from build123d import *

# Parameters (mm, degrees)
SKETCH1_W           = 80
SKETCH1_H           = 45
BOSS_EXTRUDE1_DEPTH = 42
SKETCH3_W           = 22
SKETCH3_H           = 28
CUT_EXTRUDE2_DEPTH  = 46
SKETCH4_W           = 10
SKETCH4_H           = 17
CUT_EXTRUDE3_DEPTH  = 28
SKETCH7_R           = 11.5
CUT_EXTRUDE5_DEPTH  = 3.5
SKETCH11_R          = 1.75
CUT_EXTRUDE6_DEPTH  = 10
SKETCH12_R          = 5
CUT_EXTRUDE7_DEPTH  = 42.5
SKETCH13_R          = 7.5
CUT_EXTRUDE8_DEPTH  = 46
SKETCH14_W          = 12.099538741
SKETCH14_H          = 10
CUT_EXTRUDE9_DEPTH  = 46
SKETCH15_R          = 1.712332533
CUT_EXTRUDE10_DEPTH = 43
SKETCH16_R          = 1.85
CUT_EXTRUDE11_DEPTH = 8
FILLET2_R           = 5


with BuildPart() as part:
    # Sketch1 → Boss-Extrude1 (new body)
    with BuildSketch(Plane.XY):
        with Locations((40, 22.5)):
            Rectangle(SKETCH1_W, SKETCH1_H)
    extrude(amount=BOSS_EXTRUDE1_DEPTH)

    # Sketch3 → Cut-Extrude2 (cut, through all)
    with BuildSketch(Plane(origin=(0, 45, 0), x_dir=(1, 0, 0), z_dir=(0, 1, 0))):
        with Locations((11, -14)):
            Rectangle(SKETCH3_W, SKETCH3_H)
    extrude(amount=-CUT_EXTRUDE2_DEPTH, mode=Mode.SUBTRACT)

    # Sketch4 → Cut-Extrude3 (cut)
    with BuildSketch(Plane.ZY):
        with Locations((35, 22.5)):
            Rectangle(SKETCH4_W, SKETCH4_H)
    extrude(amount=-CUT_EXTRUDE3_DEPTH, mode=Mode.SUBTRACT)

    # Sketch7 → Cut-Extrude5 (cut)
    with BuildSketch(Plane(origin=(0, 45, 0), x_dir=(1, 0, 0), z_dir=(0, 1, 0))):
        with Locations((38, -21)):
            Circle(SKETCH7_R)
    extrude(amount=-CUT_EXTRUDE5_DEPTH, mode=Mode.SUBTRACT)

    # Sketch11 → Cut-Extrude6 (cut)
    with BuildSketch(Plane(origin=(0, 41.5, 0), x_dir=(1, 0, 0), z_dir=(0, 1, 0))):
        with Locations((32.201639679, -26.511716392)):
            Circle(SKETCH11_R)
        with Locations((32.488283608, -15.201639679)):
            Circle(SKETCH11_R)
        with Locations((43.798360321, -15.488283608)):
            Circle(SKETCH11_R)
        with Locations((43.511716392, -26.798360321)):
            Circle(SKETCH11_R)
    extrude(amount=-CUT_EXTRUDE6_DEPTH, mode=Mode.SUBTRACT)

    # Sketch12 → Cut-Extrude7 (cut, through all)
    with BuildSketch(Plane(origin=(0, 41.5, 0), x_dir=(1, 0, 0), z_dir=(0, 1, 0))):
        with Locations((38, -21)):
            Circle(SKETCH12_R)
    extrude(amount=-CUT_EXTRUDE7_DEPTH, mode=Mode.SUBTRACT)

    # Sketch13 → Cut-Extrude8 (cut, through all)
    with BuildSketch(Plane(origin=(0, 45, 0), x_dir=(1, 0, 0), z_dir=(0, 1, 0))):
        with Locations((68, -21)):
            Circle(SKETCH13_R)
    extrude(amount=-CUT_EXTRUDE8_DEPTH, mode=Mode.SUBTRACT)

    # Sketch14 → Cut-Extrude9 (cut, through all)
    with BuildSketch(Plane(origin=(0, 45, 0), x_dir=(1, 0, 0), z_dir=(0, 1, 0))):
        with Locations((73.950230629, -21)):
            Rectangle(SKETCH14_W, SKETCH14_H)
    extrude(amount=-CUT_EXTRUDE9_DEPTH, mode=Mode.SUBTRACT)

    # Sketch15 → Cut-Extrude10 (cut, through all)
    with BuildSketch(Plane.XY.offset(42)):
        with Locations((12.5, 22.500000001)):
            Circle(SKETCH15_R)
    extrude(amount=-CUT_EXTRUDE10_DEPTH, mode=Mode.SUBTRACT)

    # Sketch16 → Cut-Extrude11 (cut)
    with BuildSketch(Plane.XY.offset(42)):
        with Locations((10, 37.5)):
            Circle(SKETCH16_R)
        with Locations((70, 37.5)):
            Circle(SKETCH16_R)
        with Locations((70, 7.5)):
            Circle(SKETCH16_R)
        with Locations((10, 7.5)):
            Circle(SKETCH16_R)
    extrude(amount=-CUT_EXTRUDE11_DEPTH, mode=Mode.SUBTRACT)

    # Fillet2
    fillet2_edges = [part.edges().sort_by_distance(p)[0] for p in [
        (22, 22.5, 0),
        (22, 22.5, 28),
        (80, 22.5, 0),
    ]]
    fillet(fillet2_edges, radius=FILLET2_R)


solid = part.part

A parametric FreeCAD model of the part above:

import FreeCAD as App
import Part
import Sketcher
Q = App.Units.Quantity


def edges_at(feature, points):
    """Names of the edges that pass closest to the given points."""
    edges = feature.Shape.Edges
    near = lambda p: min(range(len(edges)), key=lambda i: edges[i].distToShape(Part.Vertex(*p))[0])
    return sorted({f"Edge{near(p) + 1}" for p in points})

doc = App.newDocument("Part")
body = doc.addObject("PartDesign::Body", "Body")

sketch1 = body.newObject("Sketcher::SketchObject", "Sketch")
sketch1.AttachmentSupport = (doc.getObject("XY_Plane"), [""])
sketch1.MapMode = "FlatFace"
sketch1.addGeometry([
    Part.LineSegment(App.Vector(0, 45, 0), App.Vector(0, 0, 0)),
    Part.LineSegment(App.Vector(0, 0, 0), App.Vector(80, 0, 0)),
    Part.LineSegment(App.Vector(80, 0, 0), App.Vector(80, 45, 0)),
    Part.LineSegment(App.Vector(80, 45, 0), App.Vector(0, 45, 0)),
], False)
sketch1.addConstraint([
    Sketcher.Constraint("Coincident", 0, 2, 1, 1),
    Sketcher.Constraint("Coincident", 1, 2, 2, 1),
    Sketcher.Constraint("Coincident", 2, 2, 3, 1),
    Sketcher.Constraint("Coincident", 3, 2, 0, 1),
    Sketcher.Constraint("Vertical", 0),
    Sketcher.Constraint("Horizontal", 1),
    Sketcher.Constraint("Vertical", 2),
    Sketcher.Constraint("Horizontal", 3),
    Sketcher.Constraint("Coincident", 0, 2, -1, 1),
    Sketcher.Constraint("DistanceX", 1, 1, 1, 2, Q("80 mm")),
    Sketcher.Constraint("DistanceY", 0, 2, 0, 1, Q("45 mm")),
])
pad1 = body.newObject("PartDesign::Pad", "Pad")
pad1.Profile = sketch1
pad1.Length = 42

sketch2 = body.newObject("Sketcher::SketchObject", "Sketch001")
sketch2.AttachmentSupport = (doc.getObject("XZ_Plane"), [""])
sketch2.MapMode = "FlatFace"
sketch2.AttachmentOffset = App.Placement(App.Vector(0, 0, -45), App.Rotation())
sketch2.addGeometry([
    Part.LineSegment(App.Vector(0, 0, 0), App.Vector(0, 28, 0)),
    Part.LineSegment(App.Vector(0, 28, 0), App.Vector(22, 28, 0)),
    Part.LineSegment(App.Vector(22, 28, 0), App.Vector(22, 0, 0)),
    Part.LineSegment(App.Vector(22, 0, 0), App.Vector(0, 0, 0)),
], False)
sketch2.addConstraint([
    Sketcher.Constraint("Coincident", 0, 2, 1, 1),
    Sketcher.Constraint("Coincident", 1, 2, 2, 1),
    Sketcher.Constraint("Coincident", 2, 2, 3, 1),
    Sketcher.Constraint("Coincident", 3, 2, 0, 1),
    Sketcher.Constraint("Vertical", 0),
    Sketcher.Constraint("Horizontal", 1),
    Sketcher.Constraint("Vertical", 2),
    Sketcher.Constraint("Horizontal", 3),
    Sketcher.Constraint("Coincident", 3, 2, -1, 1),
    Sketcher.Constraint("DistanceX", 1, 1, 1, 2, Q("22 mm")),
    Sketcher.Constraint("DistanceY", 0, 1, 0, 2, Q("28 mm")),
])
pocket1 = body.newObject("PartDesign::Pocket", "Pocket")
pocket1.Profile = sketch2
pocket1.Type = "ThroughAll"
pocket1.Reversed = True

sketch3 = body.newObject("Sketcher::SketchObject", "Sketch002")
sketch3.AttachmentSupport = (doc.getObject("YZ_Plane"), [""])
sketch3.MapMode = "FlatFace"
sketch3.addGeometry([
    Part.LineSegment(App.Vector(31, 30, 0), App.Vector(14, 30, 0)),
    Part.LineSegment(App.Vector(14, 30, 0), App.Vector(14, 40, 0)),
    Part.LineSegment(App.Vector(14, 40, 0), App.Vector(31, 40, 0)),
    Part.LineSegment(App.Vector(31, 40, 0), App.Vector(31, 30, 0)),
], False)
sketch3.addConstraint([
    Sketcher.Constraint("Coincident", 0, 2, 1, 1),
    Sketcher.Constraint("Coincident", 1, 2, 2, 1),
    Sketcher.Constraint("Coincident", 2, 2, 3, 1),
    Sketcher.Constraint("Coincident", 3, 2, 0, 1),
    Sketcher.Constraint("Horizontal", 0),
    Sketcher.Constraint("Vertical", 1),
    Sketcher.Constraint("Horizontal", 2),
    Sketcher.Constraint("Vertical", 3),
    Sketcher.Constraint("DistanceX", 0, 2, 0, 1, Q("17 mm")),
    Sketcher.Constraint("DistanceY", 1, 1, 1, 2, Q("10 mm")),
    Sketcher.Constraint("DistanceX", -1, 1, 0, 2, Q("14 mm")),
    Sketcher.Constraint("DistanceY", -1, 1, 0, 2, Q("30 mm")),
])
pocket2 = body.newObject("PartDesign::Pocket", "Pocket001")
pocket2.Profile = sketch3
pocket2.Length = 28
pocket2.Reversed = True

sketch4 = body.newObject("Sketcher::SketchObject", "Sketch003")
sketch4.AttachmentSupport = (doc.getObject("XZ_Plane"), [""])
sketch4.MapMode = "FlatFace"
sketch4.AttachmentOffset = App.Placement(App.Vector(0, 0, -45), App.Rotation())
sketch4.addGeometry(Part.Circle(App.Vector(38, 21, 0), App.Vector(0, 0, 1), 12), False)
sketch4.addConstraint([
    Sketcher.Constraint("Diameter", 0, Q("23 mm")),
    Sketcher.Constraint("DistanceX", -1, 1, 0, 3, Q("38 mm")),
    Sketcher.Constraint("DistanceY", -1, 1, 0, 3, Q("21 mm")),
])
pocket3 = body.newObject("PartDesign::Pocket", "Pocket002")
pocket3.Profile = sketch4
pocket3.Length = 3.5
pocket3.Reversed = True

sketch5 = body.newObject("Sketcher::SketchObject", "Sketch004")
sketch5.AttachmentSupport = (doc.getObject("XZ_Plane"), [""])
sketch5.MapMode = "FlatFace"
sketch5.AttachmentOffset = App.Placement(App.Vector(0, 0, -41.5), App.Rotation())
sketch5.addGeometry([
    Part.Circle(App.Vector(32.2, 26.5, 0), App.Vector(0, 0, 1), 1.8),
    Part.Circle(App.Vector(32.5, 15.2, 0), App.Vector(0, 0, 1), 1.8),
    Part.Circle(App.Vector(43.8, 15.5, 0), App.Vector(0, 0, 1), 1.8),
    Part.Circle(App.Vector(43.5, 26.8, 0), App.Vector(0, 0, 1), 1.8),
], False)
sketch5.addConstraint([
    Sketcher.Constraint("Equal", 0, 1),
    Sketcher.Constraint("Equal", 1, 2),
    Sketcher.Constraint("Equal", 2, 3),
    Sketcher.Constraint("Diameter", 0, Q("3.5 mm")),
    Sketcher.Constraint("DistanceX", -1, 1, 0, 3, Q("32.20164 mm")),
    Sketcher.Constraint("DistanceY", -1, 1, 1, 3, Q("15.20164 mm")),
    Sketcher.Constraint("DistanceX", -1, 1, 2, 3, Q("43.79836 mm")),
    Sketcher.Constraint("DistanceY", -1, 1, 3, 3, Q("26.79836 mm")),
    Sketcher.Constraint("DistanceY", -1, 1, 0, 3, Q("26.511716 mm")),
    Sketcher.Constraint("DistanceX", -1, 1, 1, 3, Q("32.488284 mm")),
    Sketcher.Constraint("DistanceY", -1, 1, 2, 3, Q("15.488284 mm")),
    Sketcher.Constraint("DistanceX", -1, 1, 3, 3, Q("43.511716 mm")),
])
pocket4 = body.newObject("PartDesign::Pocket", "Pocket003")
pocket4.Profile = sketch5
pocket4.Length = 10
pocket4.Reversed = True

sketch6 = body.newObject("Sketcher::SketchObject", "Sketch005")
sketch6.AttachmentSupport = (doc.getObject("XZ_Plane"), [""])
sketch6.MapMode = "FlatFace"
sketch6.AttachmentOffset = App.Placement(App.Vector(0, 0, -41.5), App.Rotation())
sketch6.addGeometry(Part.Circle(App.Vector(38, 21, 0), App.Vector(0, 0, 1), 5), False)
sketch6.addConstraint([
    Sketcher.Constraint("Diameter", 0, Q("10 mm")),
    Sketcher.Constraint("DistanceX", -1, 1, 0, 3, Q("38 mm")),
    Sketcher.Constraint("DistanceY", -1, 1, 0, 3, Q("21 mm")),
])
pocket5 = body.newObject("PartDesign::Pocket", "Pocket004")
pocket5.Profile = sketch6
pocket5.Type = "ThroughAll"
pocket5.Reversed = True

sketch7 = body.newObject("Sketcher::SketchObject", "Sketch006")
sketch7.AttachmentSupport = (doc.getObject("XZ_Plane"), [""])
sketch7.MapMode = "FlatFace"
sketch7.AttachmentOffset = App.Placement(App.Vector(0, 0, -45), App.Rotation())
sketch7.addGeometry(Part.Circle(App.Vector(68, 21, 0), App.Vector(0, 0, 1), 8), False)
sketch7.addConstraint([
    Sketcher.Constraint("Diameter", 0, Q("15 mm")),
    Sketcher.Constraint("DistanceX", -1, 1, 0, 3, Q("68 mm")),
    Sketcher.Constraint("DistanceY", -1, 1, 0, 3, Q("21 mm")),
])
pocket6 = body.newObject("PartDesign::Pocket", "Pocket005")
pocket6.Profile = sketch7
pocket6.Type = "ThroughAll"
pocket6.Reversed = True

sketch8 = body.newObject("Sketcher::SketchObject", "Sketch007")
sketch8.AttachmentSupport = (doc.getObject("XZ_Plane"), [""])
sketch8.MapMode = "FlatFace"
sketch8.AttachmentOffset = App.Placement(App.Vector(0, 0, -45), App.Rotation())
sketch8.addGeometry([
    Part.LineSegment(App.Vector(68, 16, 0), App.Vector(68, 26, 0)),
    Part.LineSegment(App.Vector(68, 26, 0), App.Vector(80, 26, 0)),
    Part.LineSegment(App.Vector(80, 26, 0), App.Vector(80, 16, 0)),
    Part.LineSegment(App.Vector(80, 16, 0), App.Vector(68, 16, 0)),
], False)
sketch8.addConstraint([
    Sketcher.Constraint("Coincident", 0, 2, 1, 1),
    Sketcher.Constraint("Coincident", 1, 2, 2, 1),
    Sketcher.Constraint("Coincident", 2, 2, 3, 1),
    Sketcher.Constraint("Coincident", 3, 2, 0, 1),
    Sketcher.Constraint("Vertical", 0),
    Sketcher.Constraint("Horizontal", 1),
    Sketcher.Constraint("Vertical", 2),
    Sketcher.Constraint("Horizontal", 3),
    Sketcher.Constraint("DistanceY", 0, 1, 0, 2, Q("10 mm")),
    Sketcher.Constraint("DistanceY", -1, 1, 0, 2, Q("26 mm")),
    Sketcher.Constraint("DistanceX", -1, 1, 1, 2, Q("80 mm")),
    Sketcher.Constraint("DistanceX", 1, 1, 1, 2, Q("12.099539 mm")),
])
pocket7 = body.newObject("PartDesign::Pocket", "Pocket006")
pocket7.Profile = sketch8
pocket7.Type = "ThroughAll"
pocket7.Reversed = True

sketch9 = body.newObject("Sketcher::SketchObject", "Sketch008")
sketch9.AttachmentSupport = (doc.getObject("XY_Plane"), [""])
sketch9.MapMode = "FlatFace"
sketch9.AttachmentOffset = App.Placement(App.Vector(0, 0, 42), App.Rotation())
sketch9.addGeometry(Part.Circle(App.Vector(12.5, 22.5, 0), App.Vector(0, 0, 1), 1.7), False)
sketch9.addConstraint([
    Sketcher.Constraint("DistanceX", -1, 1, 0, 3, Q("12.5 mm")),
    Sketcher.Constraint("DistanceY", -1, 1, 0, 3, Q("22.5 mm")),
    Sketcher.Constraint("Diameter", 0, Q("3.424665 mm")),
])
pocket8 = body.newObject("PartDesign::Pocket", "Pocket007")
pocket8.Profile = sketch9
pocket8.Type = "ThroughAll"

sketch10 = body.newObject("Sketcher::SketchObject", "Sketch009")
sketch10.AttachmentSupport = (doc.getObject("XY_Plane"), [""])
sketch10.MapMode = "FlatFace"
sketch10.AttachmentOffset = App.Placement(App.Vector(0, 0, 42), App.Rotation())
sketch10.addGeometry([
    Part.Circle(App.Vector(10, 37.5, 0), App.Vector(0, 0, 1), 1.9),
    Part.Circle(App.Vector(70, 37.5, 0), App.Vector(0, 0, 1), 1.9),
    Part.Circle(App.Vector(70, 7.5, 0), App.Vector(0, 0, 1), 1.9),
    Part.Circle(App.Vector(10, 7.5, 0), App.Vector(0, 0, 1), 1.9),
], False)
sketch10.addConstraint([
    Sketcher.Constraint("Equal", 0, 1),
    Sketcher.Constraint("Equal", 1, 2),
    Sketcher.Constraint("Equal", 2, 3),
    Sketcher.Constraint("Horizontal", 0, 3, 1, 3),
    Sketcher.Constraint("Horizontal", 2, 3, 3, 3),
    Sketcher.Constraint("Vertical", 1, 3, 2, 3),
    Sketcher.Constraint("Vertical", 0, 3, 3, 3),
    Sketcher.Constraint("Diameter", 0, Q("3.7 mm")),
    Sketcher.Constraint("DistanceX", -1, 1, 0, 3, Q("10 mm")),
    Sketcher.Constraint("DistanceX", -1, 1, 1, 3, Q("70 mm")),
    Sketcher.Constraint("DistanceY", 2, 3, 1, 3, Q("30 mm")),
    Sketcher.Constraint("DistanceY", -1, 1, 0, 3, Q("37.5 mm")),
])
pocket9 = body.newObject("PartDesign::Pocket", "Pocket008")
pocket9.Profile = sketch10
pocket9.Length = 8
doc.recompute()

fillet = body.newObject("PartDesign::Fillet", "Fillet")
fillet.Base = (pocket9, edges_at(pocket9, [(22, 22.5, 0), (22, 22.5, 28), (80, 22.5, 0)]))
fillet.Radius = 5

doc.recompute()
